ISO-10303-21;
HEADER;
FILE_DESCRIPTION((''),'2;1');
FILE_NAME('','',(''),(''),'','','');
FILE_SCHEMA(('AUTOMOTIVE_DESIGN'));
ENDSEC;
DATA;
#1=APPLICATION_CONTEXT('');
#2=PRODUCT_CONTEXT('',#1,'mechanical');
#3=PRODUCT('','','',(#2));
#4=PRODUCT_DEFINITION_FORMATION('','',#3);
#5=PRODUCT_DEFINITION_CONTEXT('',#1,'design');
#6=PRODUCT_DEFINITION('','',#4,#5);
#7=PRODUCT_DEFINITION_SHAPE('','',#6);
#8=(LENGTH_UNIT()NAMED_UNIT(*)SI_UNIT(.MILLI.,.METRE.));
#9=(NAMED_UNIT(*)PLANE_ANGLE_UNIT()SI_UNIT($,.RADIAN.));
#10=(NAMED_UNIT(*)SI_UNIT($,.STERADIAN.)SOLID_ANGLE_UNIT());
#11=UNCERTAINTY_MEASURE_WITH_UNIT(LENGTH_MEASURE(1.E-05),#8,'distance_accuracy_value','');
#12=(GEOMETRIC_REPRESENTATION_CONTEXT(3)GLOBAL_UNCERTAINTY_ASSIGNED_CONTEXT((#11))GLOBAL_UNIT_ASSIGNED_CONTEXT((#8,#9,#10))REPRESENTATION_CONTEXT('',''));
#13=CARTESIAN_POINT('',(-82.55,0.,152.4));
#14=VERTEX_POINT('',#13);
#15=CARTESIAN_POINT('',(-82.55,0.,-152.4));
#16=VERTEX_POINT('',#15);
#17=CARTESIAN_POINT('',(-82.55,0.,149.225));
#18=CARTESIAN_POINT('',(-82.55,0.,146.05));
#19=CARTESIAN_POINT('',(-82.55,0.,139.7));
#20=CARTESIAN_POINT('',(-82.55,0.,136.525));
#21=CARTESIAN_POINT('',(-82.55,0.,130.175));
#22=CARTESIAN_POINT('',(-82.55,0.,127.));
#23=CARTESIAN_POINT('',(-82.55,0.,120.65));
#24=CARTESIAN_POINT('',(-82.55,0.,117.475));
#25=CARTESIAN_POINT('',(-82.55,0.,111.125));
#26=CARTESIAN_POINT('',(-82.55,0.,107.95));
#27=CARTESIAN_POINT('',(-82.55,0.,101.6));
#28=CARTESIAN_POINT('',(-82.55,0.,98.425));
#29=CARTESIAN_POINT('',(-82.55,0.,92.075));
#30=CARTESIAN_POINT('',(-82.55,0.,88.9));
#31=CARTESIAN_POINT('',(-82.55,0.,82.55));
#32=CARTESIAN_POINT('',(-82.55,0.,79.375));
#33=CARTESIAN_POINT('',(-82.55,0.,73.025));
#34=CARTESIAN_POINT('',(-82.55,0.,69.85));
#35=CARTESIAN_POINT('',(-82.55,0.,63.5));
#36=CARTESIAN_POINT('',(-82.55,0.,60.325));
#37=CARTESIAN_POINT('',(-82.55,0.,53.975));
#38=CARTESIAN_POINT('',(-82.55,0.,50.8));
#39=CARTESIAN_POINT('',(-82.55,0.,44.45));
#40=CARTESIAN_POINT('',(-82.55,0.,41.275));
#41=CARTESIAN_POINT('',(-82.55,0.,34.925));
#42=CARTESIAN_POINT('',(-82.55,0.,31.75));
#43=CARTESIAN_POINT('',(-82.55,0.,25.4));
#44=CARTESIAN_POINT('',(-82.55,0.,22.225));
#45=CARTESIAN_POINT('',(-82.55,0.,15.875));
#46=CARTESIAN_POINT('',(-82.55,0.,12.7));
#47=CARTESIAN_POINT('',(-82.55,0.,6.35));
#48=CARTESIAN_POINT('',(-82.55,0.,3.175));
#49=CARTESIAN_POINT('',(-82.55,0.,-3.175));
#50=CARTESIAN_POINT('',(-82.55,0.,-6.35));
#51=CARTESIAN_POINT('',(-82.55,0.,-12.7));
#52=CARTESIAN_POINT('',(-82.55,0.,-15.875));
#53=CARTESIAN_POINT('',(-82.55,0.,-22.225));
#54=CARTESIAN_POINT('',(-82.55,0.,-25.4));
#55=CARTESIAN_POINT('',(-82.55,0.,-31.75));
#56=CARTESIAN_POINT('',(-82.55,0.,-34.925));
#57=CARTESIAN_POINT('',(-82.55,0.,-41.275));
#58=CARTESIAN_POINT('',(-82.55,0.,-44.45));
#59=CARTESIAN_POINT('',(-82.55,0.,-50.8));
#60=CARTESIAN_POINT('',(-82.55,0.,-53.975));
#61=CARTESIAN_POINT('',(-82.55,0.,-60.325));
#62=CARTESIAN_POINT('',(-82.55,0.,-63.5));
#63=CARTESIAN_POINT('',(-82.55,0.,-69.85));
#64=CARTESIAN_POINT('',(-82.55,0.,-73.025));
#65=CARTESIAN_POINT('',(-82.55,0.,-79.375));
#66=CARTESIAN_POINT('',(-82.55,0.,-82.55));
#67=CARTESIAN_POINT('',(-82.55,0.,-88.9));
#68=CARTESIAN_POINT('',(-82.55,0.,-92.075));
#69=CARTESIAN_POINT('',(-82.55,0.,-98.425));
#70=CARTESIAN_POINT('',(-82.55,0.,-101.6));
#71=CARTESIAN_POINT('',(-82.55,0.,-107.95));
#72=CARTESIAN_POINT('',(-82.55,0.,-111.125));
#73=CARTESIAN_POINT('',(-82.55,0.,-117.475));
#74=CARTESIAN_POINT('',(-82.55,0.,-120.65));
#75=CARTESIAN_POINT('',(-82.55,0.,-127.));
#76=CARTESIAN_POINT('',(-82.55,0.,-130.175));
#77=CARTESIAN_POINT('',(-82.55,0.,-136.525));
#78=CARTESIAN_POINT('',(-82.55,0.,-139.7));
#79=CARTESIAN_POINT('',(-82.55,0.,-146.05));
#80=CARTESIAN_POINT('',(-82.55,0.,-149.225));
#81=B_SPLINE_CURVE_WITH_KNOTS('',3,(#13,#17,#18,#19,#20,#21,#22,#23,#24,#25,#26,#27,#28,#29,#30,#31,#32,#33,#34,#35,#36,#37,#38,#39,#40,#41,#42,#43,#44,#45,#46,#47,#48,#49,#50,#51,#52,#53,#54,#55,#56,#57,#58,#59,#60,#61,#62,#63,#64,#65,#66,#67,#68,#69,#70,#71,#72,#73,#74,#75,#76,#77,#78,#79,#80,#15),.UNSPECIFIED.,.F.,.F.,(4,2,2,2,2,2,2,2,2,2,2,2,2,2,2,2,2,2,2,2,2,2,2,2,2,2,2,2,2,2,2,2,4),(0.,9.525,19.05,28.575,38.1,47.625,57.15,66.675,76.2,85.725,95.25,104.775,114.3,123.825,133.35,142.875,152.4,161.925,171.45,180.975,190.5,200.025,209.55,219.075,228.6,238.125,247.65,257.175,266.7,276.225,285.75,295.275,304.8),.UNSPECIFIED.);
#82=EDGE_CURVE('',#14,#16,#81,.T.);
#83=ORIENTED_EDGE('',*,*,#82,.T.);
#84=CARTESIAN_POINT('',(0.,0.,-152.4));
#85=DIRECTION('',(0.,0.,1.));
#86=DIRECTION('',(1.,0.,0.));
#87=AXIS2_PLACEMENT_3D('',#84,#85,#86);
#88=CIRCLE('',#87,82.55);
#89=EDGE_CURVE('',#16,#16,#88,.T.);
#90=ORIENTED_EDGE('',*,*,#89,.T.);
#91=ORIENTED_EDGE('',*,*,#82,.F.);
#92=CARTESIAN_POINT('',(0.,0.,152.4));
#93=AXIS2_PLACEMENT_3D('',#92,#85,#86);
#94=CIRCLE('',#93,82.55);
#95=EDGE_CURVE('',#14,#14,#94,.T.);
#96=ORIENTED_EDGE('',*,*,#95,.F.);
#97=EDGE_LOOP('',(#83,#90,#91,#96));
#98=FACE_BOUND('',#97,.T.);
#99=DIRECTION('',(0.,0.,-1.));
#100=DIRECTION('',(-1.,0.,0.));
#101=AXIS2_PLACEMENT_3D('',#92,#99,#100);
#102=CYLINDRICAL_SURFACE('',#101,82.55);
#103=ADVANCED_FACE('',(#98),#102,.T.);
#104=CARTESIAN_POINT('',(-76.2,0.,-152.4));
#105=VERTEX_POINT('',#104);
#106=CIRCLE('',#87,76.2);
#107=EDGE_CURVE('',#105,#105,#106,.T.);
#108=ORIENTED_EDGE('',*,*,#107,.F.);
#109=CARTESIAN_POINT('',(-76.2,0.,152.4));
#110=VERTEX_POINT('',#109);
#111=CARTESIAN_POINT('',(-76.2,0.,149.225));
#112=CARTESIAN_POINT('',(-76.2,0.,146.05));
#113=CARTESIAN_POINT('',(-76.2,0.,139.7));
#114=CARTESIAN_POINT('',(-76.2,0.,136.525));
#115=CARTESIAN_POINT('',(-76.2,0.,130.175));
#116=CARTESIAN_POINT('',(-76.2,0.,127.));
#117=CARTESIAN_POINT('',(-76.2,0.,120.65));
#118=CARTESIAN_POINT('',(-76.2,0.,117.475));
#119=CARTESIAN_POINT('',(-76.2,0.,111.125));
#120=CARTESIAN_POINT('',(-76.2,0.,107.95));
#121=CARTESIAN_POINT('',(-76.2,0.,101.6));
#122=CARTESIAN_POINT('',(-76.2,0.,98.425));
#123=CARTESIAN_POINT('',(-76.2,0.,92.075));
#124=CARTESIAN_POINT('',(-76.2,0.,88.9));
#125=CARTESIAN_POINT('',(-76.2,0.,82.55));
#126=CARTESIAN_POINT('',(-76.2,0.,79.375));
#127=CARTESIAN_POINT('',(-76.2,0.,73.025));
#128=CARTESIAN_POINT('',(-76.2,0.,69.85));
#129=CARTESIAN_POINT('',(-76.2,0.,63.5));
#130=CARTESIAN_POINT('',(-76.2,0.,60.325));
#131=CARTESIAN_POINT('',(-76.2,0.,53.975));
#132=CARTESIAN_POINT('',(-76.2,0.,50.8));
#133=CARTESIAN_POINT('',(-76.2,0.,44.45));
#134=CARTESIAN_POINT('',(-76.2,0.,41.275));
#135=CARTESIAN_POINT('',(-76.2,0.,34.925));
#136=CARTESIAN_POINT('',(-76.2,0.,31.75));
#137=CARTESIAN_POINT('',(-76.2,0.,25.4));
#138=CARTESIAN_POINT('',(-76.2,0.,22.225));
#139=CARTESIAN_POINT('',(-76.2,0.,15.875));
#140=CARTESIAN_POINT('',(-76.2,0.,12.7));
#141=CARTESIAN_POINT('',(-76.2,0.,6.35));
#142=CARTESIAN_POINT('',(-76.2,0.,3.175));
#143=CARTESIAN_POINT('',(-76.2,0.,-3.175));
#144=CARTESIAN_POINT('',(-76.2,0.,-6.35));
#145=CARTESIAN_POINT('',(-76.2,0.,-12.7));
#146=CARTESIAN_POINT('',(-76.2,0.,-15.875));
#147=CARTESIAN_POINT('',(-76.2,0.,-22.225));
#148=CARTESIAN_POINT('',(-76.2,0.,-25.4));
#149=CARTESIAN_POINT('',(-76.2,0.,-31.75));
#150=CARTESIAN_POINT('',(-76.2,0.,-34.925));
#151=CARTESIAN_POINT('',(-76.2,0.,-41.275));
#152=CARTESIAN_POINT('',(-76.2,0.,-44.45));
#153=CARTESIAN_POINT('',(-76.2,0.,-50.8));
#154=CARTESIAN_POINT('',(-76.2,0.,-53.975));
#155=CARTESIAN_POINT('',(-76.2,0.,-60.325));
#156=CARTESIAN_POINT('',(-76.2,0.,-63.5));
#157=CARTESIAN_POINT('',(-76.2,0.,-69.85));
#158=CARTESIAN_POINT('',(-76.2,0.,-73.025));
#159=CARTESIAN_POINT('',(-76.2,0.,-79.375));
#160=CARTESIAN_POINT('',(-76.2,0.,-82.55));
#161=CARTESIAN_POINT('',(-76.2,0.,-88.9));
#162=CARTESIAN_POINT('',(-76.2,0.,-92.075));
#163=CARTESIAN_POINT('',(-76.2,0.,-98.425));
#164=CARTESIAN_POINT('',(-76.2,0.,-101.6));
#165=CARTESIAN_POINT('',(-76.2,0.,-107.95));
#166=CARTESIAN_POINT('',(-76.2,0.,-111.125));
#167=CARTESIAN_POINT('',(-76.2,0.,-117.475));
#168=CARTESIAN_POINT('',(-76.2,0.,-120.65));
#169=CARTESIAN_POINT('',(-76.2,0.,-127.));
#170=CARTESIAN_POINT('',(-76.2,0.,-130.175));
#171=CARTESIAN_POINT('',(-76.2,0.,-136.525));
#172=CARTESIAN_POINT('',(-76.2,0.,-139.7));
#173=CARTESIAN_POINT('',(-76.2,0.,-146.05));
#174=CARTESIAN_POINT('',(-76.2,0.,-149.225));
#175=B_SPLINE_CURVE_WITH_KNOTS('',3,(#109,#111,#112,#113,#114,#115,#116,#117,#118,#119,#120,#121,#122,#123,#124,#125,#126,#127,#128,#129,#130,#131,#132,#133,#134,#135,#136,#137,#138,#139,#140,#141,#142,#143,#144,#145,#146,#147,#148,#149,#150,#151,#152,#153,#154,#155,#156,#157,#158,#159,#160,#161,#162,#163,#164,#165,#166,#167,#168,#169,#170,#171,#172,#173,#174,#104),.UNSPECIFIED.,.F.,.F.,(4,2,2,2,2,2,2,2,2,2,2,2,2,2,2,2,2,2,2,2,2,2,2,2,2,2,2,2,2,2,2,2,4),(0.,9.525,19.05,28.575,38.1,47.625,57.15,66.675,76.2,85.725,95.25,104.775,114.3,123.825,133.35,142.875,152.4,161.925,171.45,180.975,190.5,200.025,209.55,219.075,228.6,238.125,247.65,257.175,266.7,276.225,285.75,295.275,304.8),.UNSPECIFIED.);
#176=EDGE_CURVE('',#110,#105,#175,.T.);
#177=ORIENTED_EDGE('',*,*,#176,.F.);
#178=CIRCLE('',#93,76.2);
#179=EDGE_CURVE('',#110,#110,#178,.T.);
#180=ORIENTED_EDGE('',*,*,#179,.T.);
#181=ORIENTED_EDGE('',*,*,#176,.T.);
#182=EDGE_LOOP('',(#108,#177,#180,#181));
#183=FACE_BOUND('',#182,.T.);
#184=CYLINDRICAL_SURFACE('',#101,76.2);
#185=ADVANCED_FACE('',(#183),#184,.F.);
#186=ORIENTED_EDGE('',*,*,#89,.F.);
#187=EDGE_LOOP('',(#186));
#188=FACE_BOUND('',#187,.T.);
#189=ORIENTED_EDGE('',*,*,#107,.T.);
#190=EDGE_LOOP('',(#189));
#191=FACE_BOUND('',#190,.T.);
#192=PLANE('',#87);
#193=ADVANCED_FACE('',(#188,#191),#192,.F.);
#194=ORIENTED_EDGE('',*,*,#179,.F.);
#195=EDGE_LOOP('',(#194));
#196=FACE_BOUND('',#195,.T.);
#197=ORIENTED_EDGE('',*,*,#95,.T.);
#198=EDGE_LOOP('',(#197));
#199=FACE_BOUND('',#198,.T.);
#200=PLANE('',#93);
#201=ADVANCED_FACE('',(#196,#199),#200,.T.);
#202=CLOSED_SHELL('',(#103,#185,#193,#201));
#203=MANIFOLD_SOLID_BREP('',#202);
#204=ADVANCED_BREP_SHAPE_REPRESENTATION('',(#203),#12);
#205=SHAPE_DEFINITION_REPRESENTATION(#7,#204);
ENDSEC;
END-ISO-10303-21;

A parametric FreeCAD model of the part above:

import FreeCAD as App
import Part
import Sketcher
from FreeCAD import Vector
Q = App.Units.Quantity

doc = App.newDocument("Part")
body = doc.addObject("PartDesign::Body", "Body")

# Sketch on XY plane
sketch1 = doc.addObject("Sketcher::SketchObject", "Sketch")
body.addObject(sketch1)
sketch1.AttachmentSupport = (doc.XY_Plane, [""])
sketch1.MapMode = "FlatFace"
sketch1.addGeometry([
    Part.Circle(Vector(0, 0, 0), Vector(0, 0, 1), 82.55),
    Part.Circle(Vector(0, 0, 0), Vector(0, 0, 1), 76.2),
], False)
sketch1.addConstraint([
    Sketcher.Constraint("Coincident", 0, 3, -1, 1),
    Sketcher.Constraint("Coincident", 1, 3, -1, 1),
    Sketcher.Constraint("Diameter", 1, Q("6 in")),
    Sketcher.Constraint("Diameter", 0, Q("6.5 in")),
])
pad1 = doc.addObject("PartDesign::Pad", "Pad")
body.addObject(pad1)
pad1.Profile = sketch1
pad1.Length = Q("12 in")
pad1.Midplane = True

doc.recompute()
